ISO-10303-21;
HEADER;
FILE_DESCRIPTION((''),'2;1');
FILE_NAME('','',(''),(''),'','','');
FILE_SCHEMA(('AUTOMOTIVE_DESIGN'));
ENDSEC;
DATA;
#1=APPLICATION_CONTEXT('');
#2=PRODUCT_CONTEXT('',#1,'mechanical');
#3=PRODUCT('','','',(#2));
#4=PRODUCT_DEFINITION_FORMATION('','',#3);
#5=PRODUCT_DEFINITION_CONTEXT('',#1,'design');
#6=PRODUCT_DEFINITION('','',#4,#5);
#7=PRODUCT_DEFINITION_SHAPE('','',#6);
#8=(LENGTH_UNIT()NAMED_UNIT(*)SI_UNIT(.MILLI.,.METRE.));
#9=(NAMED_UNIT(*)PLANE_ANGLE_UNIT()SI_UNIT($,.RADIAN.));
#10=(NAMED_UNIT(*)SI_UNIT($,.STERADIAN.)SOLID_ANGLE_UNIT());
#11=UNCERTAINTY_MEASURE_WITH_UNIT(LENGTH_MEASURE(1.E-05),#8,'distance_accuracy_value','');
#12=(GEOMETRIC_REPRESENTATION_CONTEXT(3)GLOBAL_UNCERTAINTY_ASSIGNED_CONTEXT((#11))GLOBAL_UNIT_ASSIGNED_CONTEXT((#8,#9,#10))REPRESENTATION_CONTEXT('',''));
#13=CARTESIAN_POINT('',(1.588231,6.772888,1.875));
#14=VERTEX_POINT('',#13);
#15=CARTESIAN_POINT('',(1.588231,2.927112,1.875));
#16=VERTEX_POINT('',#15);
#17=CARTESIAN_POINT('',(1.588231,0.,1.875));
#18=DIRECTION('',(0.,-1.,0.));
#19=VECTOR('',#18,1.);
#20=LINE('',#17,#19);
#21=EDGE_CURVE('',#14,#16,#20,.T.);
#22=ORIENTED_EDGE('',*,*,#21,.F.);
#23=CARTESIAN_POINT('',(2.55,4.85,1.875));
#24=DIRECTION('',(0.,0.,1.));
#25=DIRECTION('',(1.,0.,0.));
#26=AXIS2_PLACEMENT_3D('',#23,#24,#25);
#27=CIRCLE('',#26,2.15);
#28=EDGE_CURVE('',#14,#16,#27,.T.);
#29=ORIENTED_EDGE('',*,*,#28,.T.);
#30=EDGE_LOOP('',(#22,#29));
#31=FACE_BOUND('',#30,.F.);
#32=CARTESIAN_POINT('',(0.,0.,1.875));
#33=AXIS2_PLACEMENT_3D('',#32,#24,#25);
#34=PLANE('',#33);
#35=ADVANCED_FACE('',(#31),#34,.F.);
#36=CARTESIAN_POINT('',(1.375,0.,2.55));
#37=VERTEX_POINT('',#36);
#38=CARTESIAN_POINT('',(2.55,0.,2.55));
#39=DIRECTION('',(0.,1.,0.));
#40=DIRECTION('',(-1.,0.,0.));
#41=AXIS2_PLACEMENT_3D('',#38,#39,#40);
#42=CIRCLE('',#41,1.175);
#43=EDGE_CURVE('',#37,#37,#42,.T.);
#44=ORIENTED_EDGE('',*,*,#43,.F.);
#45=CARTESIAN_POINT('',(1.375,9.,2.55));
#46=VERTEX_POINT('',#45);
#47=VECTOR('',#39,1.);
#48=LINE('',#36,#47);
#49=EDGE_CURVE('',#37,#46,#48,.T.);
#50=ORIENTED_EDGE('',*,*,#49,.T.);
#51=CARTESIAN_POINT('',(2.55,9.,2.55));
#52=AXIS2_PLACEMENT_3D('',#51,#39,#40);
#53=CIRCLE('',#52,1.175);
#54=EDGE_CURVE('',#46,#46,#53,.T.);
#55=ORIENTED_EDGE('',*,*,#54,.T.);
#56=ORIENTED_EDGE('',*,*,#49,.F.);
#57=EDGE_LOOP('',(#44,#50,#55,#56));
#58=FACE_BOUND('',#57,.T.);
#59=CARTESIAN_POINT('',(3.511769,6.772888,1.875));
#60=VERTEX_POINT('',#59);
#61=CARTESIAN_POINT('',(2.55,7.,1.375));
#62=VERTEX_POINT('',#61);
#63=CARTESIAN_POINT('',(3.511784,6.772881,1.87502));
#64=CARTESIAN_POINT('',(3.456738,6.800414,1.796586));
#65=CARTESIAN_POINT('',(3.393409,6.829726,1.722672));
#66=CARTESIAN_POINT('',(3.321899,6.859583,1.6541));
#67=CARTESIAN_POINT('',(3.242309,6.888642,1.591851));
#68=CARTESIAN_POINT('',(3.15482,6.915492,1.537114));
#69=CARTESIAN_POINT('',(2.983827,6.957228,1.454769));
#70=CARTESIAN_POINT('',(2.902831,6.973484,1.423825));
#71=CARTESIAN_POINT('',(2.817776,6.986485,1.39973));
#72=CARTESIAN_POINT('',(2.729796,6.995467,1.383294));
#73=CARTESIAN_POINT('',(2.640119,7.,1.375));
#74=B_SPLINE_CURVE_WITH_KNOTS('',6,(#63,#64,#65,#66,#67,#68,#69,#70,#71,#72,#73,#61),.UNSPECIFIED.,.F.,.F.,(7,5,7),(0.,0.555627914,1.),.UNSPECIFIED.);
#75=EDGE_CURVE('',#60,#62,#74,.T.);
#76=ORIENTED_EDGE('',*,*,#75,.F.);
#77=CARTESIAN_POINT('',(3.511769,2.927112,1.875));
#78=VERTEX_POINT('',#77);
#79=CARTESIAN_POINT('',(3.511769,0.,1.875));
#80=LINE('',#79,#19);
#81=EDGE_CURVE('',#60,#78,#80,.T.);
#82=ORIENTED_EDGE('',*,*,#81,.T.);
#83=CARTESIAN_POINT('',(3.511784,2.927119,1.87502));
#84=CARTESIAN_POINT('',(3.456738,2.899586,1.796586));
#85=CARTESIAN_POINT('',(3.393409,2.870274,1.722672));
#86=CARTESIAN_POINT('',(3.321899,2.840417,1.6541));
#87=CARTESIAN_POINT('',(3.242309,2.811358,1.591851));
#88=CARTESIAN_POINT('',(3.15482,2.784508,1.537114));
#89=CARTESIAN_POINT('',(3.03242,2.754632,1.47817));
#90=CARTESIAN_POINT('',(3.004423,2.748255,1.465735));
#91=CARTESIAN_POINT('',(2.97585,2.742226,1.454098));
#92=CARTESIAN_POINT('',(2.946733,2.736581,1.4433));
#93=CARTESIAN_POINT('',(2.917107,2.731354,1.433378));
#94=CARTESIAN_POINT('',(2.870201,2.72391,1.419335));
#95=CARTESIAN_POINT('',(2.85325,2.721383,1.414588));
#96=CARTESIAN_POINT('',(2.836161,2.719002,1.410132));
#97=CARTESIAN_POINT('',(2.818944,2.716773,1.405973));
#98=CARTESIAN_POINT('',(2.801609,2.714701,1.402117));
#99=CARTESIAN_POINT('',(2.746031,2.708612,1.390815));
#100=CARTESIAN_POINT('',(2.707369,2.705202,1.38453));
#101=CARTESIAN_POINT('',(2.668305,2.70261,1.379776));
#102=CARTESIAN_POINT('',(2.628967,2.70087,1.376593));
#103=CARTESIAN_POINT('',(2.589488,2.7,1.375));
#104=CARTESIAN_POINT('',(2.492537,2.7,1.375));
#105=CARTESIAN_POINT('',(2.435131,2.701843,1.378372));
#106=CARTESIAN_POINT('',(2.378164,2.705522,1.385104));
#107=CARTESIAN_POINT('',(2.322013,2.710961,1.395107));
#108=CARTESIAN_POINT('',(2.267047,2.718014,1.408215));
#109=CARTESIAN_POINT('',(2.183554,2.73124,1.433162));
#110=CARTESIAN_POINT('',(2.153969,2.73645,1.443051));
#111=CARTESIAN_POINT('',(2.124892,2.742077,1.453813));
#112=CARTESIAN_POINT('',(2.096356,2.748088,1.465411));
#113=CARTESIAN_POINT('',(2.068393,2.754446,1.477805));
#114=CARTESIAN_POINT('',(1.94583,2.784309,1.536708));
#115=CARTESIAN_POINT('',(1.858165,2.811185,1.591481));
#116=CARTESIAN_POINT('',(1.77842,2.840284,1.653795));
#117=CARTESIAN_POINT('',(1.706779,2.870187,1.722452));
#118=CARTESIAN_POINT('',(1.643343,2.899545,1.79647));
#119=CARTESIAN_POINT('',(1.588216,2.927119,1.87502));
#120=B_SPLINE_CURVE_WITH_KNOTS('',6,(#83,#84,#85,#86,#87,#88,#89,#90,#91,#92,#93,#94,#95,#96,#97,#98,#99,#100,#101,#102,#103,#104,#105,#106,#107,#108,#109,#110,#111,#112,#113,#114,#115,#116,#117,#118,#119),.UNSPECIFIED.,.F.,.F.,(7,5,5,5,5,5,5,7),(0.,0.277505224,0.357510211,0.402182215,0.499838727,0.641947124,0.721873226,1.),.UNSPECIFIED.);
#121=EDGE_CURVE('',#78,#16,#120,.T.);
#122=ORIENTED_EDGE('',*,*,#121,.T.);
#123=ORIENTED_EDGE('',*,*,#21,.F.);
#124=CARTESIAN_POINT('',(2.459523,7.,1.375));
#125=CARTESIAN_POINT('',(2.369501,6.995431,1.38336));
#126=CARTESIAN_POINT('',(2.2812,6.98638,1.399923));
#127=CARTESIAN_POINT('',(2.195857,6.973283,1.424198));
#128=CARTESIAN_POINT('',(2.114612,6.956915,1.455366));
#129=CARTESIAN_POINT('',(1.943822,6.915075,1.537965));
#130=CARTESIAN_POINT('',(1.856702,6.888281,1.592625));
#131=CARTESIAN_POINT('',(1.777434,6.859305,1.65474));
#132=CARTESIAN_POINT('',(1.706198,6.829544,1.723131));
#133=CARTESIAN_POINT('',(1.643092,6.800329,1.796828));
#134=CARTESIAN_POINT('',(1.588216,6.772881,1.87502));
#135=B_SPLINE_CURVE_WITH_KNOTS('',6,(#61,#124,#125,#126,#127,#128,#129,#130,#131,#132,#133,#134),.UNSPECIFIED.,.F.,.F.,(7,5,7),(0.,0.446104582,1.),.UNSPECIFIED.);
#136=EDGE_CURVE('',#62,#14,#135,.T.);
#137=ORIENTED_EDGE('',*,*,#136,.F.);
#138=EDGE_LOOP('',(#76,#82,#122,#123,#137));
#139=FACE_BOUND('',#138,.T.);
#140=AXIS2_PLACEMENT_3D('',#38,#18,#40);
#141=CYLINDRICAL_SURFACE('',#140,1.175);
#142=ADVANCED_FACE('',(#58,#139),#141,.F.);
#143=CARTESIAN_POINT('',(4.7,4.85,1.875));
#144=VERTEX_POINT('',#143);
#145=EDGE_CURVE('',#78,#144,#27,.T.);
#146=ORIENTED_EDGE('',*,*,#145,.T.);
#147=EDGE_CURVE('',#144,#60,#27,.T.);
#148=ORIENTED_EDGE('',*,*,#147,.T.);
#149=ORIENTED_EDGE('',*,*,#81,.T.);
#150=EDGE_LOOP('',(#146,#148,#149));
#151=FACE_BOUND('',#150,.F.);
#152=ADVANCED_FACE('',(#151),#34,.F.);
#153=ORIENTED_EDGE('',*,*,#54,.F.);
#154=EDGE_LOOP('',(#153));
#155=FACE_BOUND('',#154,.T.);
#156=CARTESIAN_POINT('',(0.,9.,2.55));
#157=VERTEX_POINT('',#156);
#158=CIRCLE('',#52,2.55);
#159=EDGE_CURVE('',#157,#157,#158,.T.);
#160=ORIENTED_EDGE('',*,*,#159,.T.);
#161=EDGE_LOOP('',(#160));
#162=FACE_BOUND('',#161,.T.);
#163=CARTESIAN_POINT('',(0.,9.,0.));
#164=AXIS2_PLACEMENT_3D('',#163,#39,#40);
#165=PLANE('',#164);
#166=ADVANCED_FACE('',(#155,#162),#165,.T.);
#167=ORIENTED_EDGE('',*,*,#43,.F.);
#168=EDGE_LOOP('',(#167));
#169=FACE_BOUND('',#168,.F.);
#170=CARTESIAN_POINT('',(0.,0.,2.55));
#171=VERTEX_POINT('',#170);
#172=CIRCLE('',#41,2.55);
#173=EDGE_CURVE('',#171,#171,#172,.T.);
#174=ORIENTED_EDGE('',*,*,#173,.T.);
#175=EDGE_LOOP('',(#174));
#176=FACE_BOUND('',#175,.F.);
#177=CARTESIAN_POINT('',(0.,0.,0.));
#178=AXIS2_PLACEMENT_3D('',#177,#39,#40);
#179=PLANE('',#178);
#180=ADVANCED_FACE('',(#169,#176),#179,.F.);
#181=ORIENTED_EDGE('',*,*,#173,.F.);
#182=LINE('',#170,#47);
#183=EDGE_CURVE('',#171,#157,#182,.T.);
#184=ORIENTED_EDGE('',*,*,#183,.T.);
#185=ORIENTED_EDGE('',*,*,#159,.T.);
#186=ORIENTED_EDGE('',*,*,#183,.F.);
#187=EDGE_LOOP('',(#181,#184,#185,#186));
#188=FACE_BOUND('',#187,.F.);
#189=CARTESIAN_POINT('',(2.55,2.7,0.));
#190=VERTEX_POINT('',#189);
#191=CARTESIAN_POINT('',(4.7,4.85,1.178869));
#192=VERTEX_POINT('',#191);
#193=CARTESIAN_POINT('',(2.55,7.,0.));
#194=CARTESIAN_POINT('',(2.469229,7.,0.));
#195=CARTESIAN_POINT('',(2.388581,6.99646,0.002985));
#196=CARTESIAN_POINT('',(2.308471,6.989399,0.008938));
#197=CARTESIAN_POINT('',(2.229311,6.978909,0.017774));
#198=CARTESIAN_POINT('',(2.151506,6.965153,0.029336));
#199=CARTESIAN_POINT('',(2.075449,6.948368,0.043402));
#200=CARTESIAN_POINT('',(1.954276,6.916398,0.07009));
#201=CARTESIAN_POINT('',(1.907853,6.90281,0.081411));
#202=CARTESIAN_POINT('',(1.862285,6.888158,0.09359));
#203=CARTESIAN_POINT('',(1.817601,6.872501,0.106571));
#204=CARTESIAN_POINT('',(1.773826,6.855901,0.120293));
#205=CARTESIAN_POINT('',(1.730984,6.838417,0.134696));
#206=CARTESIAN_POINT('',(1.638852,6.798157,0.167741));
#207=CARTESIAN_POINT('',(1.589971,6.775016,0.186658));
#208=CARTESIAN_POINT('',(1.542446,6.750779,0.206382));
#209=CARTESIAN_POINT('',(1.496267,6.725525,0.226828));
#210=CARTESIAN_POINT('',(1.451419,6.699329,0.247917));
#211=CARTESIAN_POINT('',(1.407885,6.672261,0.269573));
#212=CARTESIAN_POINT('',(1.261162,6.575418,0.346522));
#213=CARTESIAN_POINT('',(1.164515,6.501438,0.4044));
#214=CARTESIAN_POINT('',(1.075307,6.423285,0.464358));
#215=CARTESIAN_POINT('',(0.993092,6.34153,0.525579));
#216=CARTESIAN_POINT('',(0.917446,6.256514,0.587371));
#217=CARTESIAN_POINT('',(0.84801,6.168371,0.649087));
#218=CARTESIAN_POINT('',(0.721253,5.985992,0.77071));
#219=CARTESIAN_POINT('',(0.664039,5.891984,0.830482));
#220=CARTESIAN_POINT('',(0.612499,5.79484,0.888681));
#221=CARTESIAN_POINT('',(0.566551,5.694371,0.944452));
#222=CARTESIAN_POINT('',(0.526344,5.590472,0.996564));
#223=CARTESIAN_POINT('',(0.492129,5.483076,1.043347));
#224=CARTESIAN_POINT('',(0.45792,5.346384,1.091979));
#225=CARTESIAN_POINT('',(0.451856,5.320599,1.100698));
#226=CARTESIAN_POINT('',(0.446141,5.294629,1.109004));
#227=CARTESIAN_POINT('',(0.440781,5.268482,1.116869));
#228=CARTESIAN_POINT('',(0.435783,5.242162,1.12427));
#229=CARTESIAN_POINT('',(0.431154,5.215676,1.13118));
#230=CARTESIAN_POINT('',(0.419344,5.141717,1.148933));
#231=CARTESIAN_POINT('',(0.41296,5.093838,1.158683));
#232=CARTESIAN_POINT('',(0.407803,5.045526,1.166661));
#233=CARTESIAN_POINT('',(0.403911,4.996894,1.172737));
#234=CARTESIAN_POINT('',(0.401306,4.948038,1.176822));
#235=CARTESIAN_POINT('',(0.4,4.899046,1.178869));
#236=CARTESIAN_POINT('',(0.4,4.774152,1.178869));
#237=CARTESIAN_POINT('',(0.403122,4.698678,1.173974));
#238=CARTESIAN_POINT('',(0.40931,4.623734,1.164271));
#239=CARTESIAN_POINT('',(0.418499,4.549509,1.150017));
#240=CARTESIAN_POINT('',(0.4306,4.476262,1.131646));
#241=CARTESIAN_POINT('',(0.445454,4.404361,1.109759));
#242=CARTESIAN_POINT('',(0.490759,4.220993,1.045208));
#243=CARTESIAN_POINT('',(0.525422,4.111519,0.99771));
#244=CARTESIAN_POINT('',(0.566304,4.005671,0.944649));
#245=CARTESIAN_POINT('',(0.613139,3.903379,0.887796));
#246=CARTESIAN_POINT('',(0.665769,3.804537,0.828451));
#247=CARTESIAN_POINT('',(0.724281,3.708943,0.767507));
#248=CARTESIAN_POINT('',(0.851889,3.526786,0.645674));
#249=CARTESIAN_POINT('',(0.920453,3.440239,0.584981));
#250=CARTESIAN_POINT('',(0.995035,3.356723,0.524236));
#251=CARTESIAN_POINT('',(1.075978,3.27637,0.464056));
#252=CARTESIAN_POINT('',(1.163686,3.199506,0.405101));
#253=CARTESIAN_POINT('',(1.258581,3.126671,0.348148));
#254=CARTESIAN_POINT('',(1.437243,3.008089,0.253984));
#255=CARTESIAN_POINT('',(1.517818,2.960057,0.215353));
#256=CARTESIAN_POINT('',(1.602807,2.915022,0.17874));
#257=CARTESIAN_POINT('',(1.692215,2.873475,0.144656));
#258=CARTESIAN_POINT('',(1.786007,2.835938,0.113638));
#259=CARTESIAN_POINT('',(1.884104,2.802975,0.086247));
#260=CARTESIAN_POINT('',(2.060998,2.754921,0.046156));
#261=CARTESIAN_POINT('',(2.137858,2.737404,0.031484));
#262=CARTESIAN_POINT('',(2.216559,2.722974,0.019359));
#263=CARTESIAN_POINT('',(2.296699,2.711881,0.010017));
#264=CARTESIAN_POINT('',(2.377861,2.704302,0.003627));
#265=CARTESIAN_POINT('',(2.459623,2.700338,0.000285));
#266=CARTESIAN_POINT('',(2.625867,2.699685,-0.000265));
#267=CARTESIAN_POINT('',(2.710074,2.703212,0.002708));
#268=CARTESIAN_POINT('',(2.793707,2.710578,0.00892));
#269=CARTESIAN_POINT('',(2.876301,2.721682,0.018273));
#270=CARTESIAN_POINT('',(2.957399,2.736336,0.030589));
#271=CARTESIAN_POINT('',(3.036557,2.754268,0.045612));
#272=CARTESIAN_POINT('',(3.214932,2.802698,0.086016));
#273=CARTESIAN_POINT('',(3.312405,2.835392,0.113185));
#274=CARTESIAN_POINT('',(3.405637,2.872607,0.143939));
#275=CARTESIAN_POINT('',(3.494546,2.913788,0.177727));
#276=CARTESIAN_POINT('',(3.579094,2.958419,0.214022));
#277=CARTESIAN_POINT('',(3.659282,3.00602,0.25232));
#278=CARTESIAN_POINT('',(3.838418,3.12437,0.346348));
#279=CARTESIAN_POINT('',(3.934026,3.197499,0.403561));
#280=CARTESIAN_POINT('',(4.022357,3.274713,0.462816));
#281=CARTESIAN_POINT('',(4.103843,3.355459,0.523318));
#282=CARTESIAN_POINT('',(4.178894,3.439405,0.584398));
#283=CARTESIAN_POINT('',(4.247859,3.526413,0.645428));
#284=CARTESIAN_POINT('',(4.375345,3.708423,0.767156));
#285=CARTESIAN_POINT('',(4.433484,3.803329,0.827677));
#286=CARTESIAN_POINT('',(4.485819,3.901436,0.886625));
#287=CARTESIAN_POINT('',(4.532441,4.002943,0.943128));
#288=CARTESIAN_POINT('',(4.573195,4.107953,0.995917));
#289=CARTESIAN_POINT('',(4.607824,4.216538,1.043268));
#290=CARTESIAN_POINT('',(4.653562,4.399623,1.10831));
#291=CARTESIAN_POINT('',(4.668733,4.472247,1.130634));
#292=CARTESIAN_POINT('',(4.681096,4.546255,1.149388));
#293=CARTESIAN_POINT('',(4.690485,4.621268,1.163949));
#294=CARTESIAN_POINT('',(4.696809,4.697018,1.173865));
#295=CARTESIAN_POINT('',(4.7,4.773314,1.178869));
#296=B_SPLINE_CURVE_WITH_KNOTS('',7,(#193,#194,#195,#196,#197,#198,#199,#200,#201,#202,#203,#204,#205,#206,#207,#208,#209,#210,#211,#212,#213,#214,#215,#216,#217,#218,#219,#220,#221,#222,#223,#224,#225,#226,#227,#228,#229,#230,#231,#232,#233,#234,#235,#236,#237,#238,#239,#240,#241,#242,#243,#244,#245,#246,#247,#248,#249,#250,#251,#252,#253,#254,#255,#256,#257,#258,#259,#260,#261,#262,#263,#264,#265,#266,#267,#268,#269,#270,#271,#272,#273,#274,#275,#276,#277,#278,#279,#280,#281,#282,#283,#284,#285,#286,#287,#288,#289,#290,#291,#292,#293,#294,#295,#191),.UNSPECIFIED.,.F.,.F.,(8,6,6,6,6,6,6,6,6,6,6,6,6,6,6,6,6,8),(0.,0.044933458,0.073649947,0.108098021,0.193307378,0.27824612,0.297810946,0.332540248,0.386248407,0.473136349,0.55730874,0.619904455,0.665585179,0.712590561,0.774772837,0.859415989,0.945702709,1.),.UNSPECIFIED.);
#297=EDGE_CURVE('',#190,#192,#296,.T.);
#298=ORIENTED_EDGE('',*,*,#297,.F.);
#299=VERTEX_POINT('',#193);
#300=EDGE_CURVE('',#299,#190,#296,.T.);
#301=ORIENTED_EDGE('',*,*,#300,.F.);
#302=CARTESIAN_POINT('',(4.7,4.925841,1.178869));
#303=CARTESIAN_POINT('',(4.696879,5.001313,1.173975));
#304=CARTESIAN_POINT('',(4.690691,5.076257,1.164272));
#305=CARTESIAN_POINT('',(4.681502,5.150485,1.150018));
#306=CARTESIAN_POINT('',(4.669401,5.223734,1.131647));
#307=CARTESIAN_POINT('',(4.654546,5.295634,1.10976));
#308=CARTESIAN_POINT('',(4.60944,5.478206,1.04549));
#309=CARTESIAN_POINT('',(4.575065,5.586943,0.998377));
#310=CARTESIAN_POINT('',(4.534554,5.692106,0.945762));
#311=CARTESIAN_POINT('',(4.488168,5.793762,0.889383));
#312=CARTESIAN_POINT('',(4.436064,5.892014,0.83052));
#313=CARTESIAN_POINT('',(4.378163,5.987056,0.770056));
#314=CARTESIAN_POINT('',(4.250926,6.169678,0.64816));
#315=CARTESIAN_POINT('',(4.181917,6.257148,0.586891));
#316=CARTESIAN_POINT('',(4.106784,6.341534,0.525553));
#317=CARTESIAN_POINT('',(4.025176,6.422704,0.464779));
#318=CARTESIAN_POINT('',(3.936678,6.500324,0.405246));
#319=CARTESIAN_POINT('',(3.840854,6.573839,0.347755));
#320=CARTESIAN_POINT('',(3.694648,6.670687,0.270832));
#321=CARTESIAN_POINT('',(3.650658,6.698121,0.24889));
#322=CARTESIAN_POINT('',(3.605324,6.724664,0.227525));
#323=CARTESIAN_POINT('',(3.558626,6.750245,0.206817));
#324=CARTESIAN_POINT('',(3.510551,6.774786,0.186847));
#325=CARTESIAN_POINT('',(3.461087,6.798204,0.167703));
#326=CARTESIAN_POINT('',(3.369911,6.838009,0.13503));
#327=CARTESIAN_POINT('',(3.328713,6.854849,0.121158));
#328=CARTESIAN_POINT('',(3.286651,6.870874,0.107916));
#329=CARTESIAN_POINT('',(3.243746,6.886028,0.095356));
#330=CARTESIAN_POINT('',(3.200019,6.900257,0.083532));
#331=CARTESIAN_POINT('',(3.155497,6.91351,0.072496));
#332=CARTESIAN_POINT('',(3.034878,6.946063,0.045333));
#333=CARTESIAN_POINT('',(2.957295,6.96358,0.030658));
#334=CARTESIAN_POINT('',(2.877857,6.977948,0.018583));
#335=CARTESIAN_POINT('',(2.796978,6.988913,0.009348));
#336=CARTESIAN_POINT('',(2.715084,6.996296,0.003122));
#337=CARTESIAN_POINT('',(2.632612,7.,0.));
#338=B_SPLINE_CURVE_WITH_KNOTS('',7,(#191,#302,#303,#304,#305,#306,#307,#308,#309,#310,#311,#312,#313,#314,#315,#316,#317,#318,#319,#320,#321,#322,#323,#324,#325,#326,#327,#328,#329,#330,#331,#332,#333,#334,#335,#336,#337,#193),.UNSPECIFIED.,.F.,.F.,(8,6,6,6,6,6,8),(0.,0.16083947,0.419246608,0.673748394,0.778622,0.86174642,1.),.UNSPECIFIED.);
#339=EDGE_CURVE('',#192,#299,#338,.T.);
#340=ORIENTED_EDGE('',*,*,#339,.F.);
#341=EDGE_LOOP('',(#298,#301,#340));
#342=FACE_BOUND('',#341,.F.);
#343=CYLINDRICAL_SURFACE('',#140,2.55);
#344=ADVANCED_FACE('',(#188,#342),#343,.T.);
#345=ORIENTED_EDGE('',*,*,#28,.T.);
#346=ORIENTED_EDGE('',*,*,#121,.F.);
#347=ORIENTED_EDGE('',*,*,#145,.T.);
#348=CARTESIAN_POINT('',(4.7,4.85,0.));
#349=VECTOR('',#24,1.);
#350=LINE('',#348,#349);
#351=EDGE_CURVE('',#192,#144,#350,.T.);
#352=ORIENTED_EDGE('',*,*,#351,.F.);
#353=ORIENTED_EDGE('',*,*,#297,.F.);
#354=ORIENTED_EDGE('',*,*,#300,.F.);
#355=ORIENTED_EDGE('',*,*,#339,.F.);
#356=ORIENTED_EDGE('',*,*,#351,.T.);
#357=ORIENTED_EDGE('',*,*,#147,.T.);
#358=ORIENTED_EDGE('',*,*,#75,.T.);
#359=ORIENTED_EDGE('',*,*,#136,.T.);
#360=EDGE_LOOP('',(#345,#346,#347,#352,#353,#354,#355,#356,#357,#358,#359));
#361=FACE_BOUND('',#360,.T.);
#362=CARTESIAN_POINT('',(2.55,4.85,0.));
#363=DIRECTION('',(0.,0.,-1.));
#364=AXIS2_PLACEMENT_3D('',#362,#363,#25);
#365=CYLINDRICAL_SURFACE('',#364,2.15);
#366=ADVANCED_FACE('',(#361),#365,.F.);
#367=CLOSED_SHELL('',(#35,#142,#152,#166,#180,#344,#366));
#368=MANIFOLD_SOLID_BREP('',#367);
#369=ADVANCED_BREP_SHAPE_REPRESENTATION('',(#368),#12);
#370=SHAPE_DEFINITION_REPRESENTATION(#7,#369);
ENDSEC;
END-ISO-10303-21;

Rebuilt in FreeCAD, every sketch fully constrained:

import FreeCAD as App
import Part
import Sketcher
from FreeCAD import Vector
Q = App.Units.Quantity

doc = App.newDocument("Part")
body = doc.addObject("PartDesign::Body", "Body")

sketch1 = doc.addObject("Sketcher::SketchObject", "Sketch")
body.addObject(sketch1)
sketch1.AttachmentSupport = (doc.XZ_Plane, [""])
sketch1.MapMode = "FlatFace"
sketch1.addGeometry([
    Part.Circle(Vector(2.5, 2.5, 0), Vector(0, 0, 1), 2.5),
    Part.Circle(Vector(2.5, 2.5, 0), Vector(0, 0, 1), 1.2),
], False)
sketch1.addConstraint([
    Sketcher.Constraint("Coincident", 1, 3, 0, 3),
    Sketcher.Constraint("Diameter", 0, Q("5.1 mm")),
    Sketcher.Constraint("Diameter", 1, Q("2.35 mm")),
    Sketcher.Constraint("DistanceX", -1, 1, 0, 3, Q("2.55 mm")),
    Sketcher.Constraint("DistanceY", -1, 1, 0, 3, Q("2.55 mm")),
])
pad1 = doc.addObject("PartDesign::Pad", "Pad")
body.addObject(pad1)
pad1.Profile = sketch1
pad1.Length = 9
pad1.Reversed = True

sketch2 = doc.addObject("Sketcher::SketchObject", "Sketch001")
body.addObject(sketch2)
sketch2.AttachmentSupport = (doc.XY_Plane, [""])
sketch2.MapMode = "FlatFace"
sketch2.addGeometry(Part.Circle(Vector(2.5, 4.8, 0), Vector(0, 0, 1), 2.1), False)
sketch2.addConstraint([
    Sketcher.Constraint("Diameter", 0, Q("4.3 mm")),
    Sketcher.Constraint("DistanceX", -1, 1, 0, 3, Q("2.55 mm")),
    Sketcher.Constraint("DistanceY", -1, 1, 0, 3, Q("4.85 mm")),
])
pocket1 = doc.addObject("PartDesign::Pocket", "Pocket")
body.addObject(pocket1)
pocket1.Profile = sketch2
pocket1.Length = 1.875
pocket1.Reversed = True

doc.recompute()
